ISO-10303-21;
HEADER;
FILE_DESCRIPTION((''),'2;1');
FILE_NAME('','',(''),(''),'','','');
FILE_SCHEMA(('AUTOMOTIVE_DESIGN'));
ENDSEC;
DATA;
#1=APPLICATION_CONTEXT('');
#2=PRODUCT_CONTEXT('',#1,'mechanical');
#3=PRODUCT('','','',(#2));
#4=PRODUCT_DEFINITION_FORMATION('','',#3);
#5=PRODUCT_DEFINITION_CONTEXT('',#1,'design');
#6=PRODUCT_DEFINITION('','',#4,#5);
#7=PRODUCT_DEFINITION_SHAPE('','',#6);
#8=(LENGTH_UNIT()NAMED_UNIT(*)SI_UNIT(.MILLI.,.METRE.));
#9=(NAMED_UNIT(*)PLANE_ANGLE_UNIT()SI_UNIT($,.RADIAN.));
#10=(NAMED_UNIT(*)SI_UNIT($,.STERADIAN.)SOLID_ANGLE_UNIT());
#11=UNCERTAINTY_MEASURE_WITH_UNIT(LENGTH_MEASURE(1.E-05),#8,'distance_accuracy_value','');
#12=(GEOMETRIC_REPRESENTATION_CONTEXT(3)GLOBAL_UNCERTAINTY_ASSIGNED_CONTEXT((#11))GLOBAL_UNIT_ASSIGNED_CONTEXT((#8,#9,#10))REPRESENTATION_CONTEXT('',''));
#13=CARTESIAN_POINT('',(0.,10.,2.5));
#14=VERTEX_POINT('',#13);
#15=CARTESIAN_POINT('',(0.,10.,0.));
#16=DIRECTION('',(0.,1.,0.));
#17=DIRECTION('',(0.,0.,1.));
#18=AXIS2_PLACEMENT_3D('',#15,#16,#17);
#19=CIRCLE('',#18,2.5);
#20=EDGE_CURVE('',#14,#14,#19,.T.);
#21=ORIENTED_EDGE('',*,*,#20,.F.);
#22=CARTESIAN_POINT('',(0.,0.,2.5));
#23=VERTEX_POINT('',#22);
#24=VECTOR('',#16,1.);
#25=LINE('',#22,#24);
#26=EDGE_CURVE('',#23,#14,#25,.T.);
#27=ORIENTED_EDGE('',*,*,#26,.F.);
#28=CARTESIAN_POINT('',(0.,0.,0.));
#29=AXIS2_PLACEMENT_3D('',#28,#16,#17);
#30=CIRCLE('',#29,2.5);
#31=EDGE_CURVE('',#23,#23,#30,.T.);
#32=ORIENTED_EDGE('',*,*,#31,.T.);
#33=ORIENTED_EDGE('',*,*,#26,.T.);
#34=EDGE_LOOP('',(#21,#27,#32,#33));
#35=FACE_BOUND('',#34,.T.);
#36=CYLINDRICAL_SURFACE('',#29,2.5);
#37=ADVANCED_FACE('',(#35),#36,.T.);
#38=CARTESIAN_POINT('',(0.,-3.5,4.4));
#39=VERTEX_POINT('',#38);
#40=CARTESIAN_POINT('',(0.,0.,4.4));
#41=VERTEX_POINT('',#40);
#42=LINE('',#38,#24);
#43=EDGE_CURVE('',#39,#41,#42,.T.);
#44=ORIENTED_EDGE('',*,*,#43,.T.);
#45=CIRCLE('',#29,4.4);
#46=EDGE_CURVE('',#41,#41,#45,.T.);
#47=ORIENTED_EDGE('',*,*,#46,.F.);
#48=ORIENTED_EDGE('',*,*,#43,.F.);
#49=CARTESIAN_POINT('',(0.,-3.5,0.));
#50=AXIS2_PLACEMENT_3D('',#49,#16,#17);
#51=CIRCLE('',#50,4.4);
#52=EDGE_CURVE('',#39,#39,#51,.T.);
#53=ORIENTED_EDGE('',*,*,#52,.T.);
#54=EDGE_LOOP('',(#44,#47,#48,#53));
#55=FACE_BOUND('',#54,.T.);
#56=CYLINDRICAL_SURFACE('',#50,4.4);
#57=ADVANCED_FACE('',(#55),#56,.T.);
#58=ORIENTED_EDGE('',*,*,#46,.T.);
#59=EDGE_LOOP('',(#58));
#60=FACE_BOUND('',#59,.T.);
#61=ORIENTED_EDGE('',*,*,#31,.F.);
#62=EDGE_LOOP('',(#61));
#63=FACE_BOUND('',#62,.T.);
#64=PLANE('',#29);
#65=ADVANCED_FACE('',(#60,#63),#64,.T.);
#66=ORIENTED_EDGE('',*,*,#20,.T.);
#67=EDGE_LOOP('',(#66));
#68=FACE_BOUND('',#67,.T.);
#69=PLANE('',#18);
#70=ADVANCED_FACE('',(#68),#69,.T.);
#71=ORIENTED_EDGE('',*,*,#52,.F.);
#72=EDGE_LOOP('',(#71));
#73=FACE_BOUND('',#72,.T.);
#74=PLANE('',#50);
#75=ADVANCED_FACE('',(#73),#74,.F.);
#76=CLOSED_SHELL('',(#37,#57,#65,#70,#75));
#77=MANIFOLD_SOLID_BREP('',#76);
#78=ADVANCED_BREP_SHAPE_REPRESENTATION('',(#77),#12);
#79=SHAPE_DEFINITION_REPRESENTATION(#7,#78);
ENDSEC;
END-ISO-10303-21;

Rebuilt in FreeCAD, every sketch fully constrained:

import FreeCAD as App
import Part
import Sketcher
Q = App.Units.Quantity

doc = App.newDocument("Part")
body = doc.addObject("PartDesign::Body", "Body")

sketch1 = body.newObject("Sketcher::SketchObject", "Sketch")
sketch1.AttachmentSupport = (doc.getObject("YZ_Plane"), [""])
sketch1.MapMode = "FlatFace"
sketch1.addGeometry([
    Part.LineSegment(App.Vector(-3.5, 4.4, 0), App.Vector(-3.5, 0, 0)),
    Part.LineSegment(App.Vector(-3.5, 0, 0), App.Vector(10, 0, 0)),
    Part.LineSegment(App.Vector(10, 0, 0), App.Vector(10, 2.5, 0)),
    Part.LineSegment(App.Vector(10, 2.5, 0), App.Vector(0, 2.5, 0)),
    Part.LineSegment(App.Vector(0, 2.5, 0), App.Vector(0, 4.4, 0)),
    Part.LineSegment(App.Vector(0, 4.4, 0), App.Vector(-3.5, 4.4, 0)),
], False)
sketch1.addConstraint([
    Sketcher.Constraint("Coincident", 0, 2, 1, 1),
    Sketcher.Constraint("Coincident", 1, 2, 2, 1),
    Sketcher.Constraint("Coincident", 2, 2, 3, 1),
    Sketcher.Constraint("Coincident", 3, 2, 4, 1),
    Sketcher.Constraint("Coincident", 4, 2, 5, 1),
    Sketcher.Constraint("Coincident", 5, 2, 0, 1),
    Sketcher.Constraint("Vertical", 0),
    Sketcher.Constraint("Horizontal", 1),
    Sketcher.Constraint("Vertical", 2),
    Sketcher.Constraint("Horizontal", 3),
    Sketcher.Constraint("Vertical", 4),
    Sketcher.Constraint("Horizontal", 5),
    Sketcher.Constraint("PointOnObject", 0, 2, -1),
    Sketcher.Constraint("PointOnObject", 3, 2, -2),
    Sketcher.Constraint("DistanceX", 3, 2, 3, 1, Q("10 mm")),
    Sketcher.Constraint("DistanceX", 1, 1, 1, 2, Q("13.5 mm")),
    Sketcher.Constraint("DistanceY", 0, 2, 0, 1, Q("4.4 mm")),
    Sketcher.Constraint("DistanceY", 2, 1, 2, 2, Q("2.5 mm")),
])
revolution = body.newObject("PartDesign::Revolution", "Revolution")
revolution.Profile = sketch1
revolution.ReferenceAxis = (sketch1, ["H_Axis"])
revolution.Angle = 360

doc.recompute()
